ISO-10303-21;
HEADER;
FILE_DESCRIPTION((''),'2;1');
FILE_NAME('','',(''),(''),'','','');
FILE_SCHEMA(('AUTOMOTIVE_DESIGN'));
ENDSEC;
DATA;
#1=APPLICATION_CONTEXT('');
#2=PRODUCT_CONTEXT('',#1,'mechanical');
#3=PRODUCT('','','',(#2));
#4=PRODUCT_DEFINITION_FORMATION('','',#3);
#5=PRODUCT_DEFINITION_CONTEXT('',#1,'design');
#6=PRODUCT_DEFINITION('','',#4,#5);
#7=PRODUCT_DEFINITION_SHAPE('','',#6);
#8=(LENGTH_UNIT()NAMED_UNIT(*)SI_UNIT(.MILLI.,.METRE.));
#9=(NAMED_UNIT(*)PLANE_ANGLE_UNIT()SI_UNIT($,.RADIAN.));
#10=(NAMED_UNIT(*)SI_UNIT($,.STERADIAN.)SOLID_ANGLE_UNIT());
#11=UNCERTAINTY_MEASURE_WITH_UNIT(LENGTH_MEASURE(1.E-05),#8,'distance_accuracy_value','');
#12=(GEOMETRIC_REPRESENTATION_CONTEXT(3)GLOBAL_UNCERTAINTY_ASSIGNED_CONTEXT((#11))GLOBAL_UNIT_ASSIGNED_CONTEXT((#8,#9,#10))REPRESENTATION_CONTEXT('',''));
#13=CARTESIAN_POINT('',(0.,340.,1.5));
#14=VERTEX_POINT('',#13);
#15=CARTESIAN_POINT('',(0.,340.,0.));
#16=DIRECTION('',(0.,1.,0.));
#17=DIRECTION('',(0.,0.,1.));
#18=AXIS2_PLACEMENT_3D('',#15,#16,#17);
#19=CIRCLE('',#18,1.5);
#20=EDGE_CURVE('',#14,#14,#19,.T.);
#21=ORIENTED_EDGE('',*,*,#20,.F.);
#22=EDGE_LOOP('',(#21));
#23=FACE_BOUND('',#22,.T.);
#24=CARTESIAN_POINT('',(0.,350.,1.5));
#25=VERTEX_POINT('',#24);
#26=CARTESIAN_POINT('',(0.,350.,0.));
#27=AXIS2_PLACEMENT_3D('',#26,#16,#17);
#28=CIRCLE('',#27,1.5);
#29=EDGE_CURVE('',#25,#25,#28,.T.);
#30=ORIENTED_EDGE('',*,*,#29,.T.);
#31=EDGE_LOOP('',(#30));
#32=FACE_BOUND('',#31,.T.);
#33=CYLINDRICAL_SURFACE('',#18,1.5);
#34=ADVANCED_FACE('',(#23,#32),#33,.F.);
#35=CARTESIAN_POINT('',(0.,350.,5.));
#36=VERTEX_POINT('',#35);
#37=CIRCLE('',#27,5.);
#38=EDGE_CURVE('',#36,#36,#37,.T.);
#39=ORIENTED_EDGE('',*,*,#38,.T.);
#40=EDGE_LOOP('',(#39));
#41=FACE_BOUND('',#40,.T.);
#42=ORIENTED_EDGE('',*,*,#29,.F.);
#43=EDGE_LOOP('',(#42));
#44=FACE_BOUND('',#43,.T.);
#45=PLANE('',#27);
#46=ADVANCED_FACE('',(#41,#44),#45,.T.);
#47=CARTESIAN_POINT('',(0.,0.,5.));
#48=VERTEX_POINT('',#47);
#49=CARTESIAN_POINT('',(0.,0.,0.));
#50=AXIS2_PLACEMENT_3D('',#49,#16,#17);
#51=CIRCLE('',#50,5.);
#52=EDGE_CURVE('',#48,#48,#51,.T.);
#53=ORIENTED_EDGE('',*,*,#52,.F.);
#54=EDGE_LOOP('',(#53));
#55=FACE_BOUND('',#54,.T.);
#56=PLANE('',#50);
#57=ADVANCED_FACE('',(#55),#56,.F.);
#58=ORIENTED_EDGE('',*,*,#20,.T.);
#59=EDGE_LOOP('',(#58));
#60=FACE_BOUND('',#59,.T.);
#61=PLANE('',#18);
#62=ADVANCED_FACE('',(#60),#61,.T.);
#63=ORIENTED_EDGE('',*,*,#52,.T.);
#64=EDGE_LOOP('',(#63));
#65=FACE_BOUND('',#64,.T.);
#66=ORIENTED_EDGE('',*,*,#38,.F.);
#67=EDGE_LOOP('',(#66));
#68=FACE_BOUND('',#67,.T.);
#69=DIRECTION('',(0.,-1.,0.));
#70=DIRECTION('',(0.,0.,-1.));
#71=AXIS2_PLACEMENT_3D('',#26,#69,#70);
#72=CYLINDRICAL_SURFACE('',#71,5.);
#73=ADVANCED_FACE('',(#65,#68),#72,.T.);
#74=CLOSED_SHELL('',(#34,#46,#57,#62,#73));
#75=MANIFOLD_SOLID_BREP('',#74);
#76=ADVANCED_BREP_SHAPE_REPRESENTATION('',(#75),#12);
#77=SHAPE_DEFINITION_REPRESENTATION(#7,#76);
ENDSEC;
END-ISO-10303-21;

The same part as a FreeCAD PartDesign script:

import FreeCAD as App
import Part
import Sketcher

V = App.Vector

doc = App.newDocument("Part")
params = doc.addObject("Spreadsheet::Sheet", "Params")
for row, (alias, value) in enumerate([
    ("sketch1_diameter", "10 mm"),
    ("pad1_length", "350 mm"),
    ("sketch2_diameter", "3 mm"),
    ("pocket1_length", "10 mm"),
], start=1):
    params.set(f"A{row}", alias)
    params.set(f"B{row}", "=" + value)
    params.setAlias(f"B{row}", alias)

body = doc.addObject("PartDesign::Body", "Body")

# Sketch on XZ plane
sketch1 = doc.addObject("Sketcher::SketchObject", "Sketch")
body.addObject(sketch1)
sketch1.AttachmentSupport = (doc.XZ_Plane, [""])
sketch1.MapMode = "FlatFace"
sketch1.addGeometry(Part.Circle(V(0, 0, 0), V(0, 0, 1), 5), False)
sketch1.addConstraint([
    Sketcher.Constraint("Coincident", 0, 3, -1, 1),
    Sketcher.Constraint("Diameter", 0, 10.0),
])
sketch1.setExpression("Constraints[1]", "Params.sketch1_diameter")
pad1 = doc.addObject("PartDesign::Pad", "Pad")
body.addObject(pad1)
pad1.Profile = sketch1
pad1.setExpression("Length", "Params.pad1_length")
pad1.Reversed = True

# Sketch on XZ plane
sketch2 = doc.addObject("Sketcher::SketchObject", "Sketch001")
body.addObject(sketch2)
sketch2.AttachmentSupport = (doc.XZ_Plane, [""])
sketch2.MapMode = "FlatFace"
sketch2.AttachmentOffset = App.Placement(V(0, 0, -350), App.Rotation())
sketch2.addGeometry(Part.Circle(V(0, 0, 0), V(0, 0, 1), 1.5), False)
sketch2.addConstraint([
    Sketcher.Constraint("Coincident", 0, 3, -1, 1),
    Sketcher.Constraint("Diameter", 0, 3.0),
])
sketch2.setExpression("Constraints[1]", "Params.sketch2_diameter")
pocket1 = doc.addObject("PartDesign::Pocket", "Pocket")
body.addObject(pocket1)
pocket1.Profile = sketch2
pocket1.setExpression("Length", "Params.pocket1_length")
pocket1.Reversed = True

doc.recompute()
